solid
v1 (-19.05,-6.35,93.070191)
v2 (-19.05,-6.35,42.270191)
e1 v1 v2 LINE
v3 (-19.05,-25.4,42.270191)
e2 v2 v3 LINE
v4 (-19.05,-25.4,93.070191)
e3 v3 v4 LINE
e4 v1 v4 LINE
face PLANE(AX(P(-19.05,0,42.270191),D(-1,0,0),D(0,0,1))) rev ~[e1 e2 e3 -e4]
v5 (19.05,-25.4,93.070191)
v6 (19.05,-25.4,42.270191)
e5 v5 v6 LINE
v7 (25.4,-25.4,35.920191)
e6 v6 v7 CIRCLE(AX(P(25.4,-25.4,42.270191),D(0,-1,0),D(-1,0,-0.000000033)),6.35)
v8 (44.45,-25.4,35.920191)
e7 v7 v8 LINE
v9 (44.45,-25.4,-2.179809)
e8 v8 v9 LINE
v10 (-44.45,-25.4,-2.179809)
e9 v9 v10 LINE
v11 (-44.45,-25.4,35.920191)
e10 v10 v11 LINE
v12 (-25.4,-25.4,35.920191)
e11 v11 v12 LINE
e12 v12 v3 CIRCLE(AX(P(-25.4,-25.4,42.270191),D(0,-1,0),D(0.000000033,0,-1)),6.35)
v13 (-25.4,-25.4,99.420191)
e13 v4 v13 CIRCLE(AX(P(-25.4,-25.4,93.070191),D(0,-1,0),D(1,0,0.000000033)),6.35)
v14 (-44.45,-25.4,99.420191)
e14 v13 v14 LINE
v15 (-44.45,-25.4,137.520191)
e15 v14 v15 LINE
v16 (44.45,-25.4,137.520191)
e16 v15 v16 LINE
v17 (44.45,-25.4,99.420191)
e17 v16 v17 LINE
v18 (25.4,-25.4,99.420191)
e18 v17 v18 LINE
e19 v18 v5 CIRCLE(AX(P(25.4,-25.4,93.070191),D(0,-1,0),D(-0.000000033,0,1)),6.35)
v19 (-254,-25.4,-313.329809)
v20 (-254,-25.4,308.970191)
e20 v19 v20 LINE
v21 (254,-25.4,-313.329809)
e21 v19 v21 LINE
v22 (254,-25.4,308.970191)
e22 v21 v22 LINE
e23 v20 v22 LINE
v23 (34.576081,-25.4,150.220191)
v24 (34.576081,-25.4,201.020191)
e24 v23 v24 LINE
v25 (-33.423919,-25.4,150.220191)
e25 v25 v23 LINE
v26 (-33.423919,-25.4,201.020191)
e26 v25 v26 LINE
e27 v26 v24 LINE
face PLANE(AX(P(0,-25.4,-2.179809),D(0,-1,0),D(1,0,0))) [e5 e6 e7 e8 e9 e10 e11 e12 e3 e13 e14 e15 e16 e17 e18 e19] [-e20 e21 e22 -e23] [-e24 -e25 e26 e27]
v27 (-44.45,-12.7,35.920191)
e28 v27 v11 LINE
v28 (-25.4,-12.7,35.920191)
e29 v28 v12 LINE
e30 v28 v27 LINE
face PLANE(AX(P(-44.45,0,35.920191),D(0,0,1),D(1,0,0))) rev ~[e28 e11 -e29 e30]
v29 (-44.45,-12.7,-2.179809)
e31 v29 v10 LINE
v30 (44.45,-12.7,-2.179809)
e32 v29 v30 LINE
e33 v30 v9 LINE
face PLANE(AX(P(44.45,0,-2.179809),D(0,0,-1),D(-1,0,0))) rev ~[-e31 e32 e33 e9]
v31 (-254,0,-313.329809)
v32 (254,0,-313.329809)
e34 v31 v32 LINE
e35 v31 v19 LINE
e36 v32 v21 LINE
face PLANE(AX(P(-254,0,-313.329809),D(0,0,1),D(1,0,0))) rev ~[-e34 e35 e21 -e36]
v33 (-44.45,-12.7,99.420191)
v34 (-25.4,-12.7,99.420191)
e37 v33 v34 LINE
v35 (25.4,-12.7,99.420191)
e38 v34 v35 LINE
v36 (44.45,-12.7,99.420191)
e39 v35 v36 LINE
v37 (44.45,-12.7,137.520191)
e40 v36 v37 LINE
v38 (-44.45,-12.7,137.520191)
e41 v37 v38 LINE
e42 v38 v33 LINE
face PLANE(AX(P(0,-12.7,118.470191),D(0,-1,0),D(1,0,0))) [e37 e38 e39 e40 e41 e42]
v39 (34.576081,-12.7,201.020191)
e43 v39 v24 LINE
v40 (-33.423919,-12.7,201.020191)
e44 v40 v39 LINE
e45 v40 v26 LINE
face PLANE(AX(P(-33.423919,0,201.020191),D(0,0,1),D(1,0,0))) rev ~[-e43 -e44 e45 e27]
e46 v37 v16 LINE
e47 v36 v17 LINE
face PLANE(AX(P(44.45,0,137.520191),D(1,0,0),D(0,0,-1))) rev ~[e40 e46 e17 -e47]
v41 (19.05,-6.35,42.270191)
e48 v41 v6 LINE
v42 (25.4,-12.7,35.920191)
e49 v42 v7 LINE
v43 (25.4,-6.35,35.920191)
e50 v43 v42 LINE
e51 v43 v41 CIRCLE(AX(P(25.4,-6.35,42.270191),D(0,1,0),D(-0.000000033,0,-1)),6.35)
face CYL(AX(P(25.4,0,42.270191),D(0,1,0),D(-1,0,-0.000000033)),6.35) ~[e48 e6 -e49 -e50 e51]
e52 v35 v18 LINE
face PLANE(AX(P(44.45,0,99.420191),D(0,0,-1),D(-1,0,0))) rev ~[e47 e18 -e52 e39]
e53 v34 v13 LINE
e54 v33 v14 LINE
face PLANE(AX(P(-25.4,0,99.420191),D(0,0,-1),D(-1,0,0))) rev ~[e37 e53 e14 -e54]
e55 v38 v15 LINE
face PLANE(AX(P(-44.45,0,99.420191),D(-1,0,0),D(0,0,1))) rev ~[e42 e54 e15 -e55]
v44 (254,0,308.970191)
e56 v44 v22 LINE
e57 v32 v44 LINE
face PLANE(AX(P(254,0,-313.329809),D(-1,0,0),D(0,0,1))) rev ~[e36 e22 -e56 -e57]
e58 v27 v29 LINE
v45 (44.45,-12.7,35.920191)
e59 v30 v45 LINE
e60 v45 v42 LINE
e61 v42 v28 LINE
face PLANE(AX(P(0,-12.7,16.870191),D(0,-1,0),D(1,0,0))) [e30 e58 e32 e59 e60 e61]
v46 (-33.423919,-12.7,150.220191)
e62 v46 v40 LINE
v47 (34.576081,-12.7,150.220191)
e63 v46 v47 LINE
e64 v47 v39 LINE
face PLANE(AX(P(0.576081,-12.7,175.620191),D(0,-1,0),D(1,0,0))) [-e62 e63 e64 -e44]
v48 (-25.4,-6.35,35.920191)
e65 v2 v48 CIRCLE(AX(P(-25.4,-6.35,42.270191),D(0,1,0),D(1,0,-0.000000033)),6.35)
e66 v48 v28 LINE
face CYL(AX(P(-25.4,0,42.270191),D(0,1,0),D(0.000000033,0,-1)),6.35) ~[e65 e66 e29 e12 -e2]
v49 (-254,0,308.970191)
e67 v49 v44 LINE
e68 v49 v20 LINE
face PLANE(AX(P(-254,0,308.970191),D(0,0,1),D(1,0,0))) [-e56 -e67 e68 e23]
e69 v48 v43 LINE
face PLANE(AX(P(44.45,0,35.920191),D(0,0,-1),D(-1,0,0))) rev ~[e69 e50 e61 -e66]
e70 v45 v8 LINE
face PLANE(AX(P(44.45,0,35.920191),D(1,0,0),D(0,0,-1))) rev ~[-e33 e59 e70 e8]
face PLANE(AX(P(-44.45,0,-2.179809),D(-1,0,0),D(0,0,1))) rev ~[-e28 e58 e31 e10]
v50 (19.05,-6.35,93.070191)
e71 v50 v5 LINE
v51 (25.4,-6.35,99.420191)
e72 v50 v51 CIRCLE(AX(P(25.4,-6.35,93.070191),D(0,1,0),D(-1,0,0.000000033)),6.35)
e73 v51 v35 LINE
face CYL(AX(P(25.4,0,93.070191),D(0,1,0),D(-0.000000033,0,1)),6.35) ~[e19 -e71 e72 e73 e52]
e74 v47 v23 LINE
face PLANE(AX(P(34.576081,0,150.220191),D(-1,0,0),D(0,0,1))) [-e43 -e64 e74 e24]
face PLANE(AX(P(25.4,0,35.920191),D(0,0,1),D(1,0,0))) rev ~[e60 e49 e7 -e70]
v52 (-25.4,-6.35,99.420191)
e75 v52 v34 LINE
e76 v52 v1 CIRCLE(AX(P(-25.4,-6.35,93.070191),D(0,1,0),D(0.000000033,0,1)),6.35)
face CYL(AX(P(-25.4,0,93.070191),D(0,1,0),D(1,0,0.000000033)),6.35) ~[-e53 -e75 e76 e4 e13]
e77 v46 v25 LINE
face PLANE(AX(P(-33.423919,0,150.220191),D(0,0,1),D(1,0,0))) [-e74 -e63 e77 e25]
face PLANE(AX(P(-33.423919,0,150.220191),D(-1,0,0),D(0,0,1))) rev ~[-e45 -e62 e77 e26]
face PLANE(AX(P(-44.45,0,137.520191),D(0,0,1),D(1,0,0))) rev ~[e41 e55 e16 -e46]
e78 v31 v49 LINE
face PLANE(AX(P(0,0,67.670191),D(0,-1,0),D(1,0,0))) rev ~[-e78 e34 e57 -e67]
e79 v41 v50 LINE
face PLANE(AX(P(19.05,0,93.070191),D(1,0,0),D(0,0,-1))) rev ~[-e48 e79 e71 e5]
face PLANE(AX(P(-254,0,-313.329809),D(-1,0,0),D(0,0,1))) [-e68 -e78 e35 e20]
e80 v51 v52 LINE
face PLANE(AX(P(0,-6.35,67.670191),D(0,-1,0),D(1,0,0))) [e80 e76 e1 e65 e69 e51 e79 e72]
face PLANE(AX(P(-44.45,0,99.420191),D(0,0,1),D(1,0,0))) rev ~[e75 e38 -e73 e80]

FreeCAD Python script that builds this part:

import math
import FreeCAD as App
import Part
import Sketcher
from FreeCAD import Vector
Q = App.Units.Quantity


def add_polygon(sketch, points):
    """Adds a closed chain of lines whose ends are joined by coincident constraints."""
    first, n = sketch.GeometryCount, len(points)
    for a, b in zip(points, points[1:] + points[:1]):
        sketch.addGeometry(Part.LineSegment(App.Vector(*a, 0), App.Vector(*b, 0)), False)
    for i in range(n):
        sketch.addConstraint(Sketcher.Constraint("Coincident", first + i, 2, first + (i + 1) % n, 1))

doc = App.newDocument("Part")
body = doc.addObject("PartDesign::Body", "Body")

sketch1 = doc.addObject("Sketcher::SketchObject", "Sketch")
body.addObject(sketch1)
sketch1.AttachmentSupport = (doc.XZ_Plane, [""])
sketch1.MapMode = "FlatFace"
add_polygon(sketch1, [(-254, 308.970191), (-254, -313.329809), (254, -313.329809), (254, 308.970191)])
sketch1.addGeometry(Part.LineSegment(Vector(-25.4, 99.420191, 0), Vector(-44.45, 99.420191, 0)), False)
sketch1.addGeometry(Part.LineSegment(Vector(-44.45, 99.420191, 0), Vector(-44.45, 137.520191, 0)), False)
sketch1.addGeometry(Part.LineSegment(Vector(-44.45, 137.520191, 0), Vector(44.45, 137.520191, 0)), False)
sketch1.addGeometry(Part.LineSegment(Vector(44.45, 137.520191, 0), Vector(44.45, 99.420191, 0)), False)
sketch1.addGeometry(Part.LineSegment(Vector(44.45, 99.420191, 0), Vector(25.4, 99.420191, 0)), False)
sketch1.addGeometry(Part.ArcOfCircle(Part.Circle(Vector(25.4, 93.070191, 0), Vector(0, 0, 1), 6.35), math.radians(90.000002), math.radians(179.999998)), False)
sketch1.addGeometry(Part.LineSegment(Vector(19.05, 93.070191, 0), Vector(19.05, 42.270191, 0)), False)
sketch1.addGeometry(Part.ArcOfCircle(Part.Circle(Vector(25.4, 42.270191, 0), Vector(0, 0, 1), 6.35), math.radians(-179.999998), math.radians(-90.000002)), False)
sketch1.addGeometry(Part.LineSegment(Vector(25.4, 35.920191, 0), Vector(44.45, 35.920191, 0)), False)
sketch1.addGeometry(Part.LineSegment(Vector(44.45, 35.920191, 0), Vector(44.45, -2.179809, 0)), False)
sketch1.addGeometry(Part.LineSegment(Vector(44.45, -2.179809, 0), Vector(-44.45, -2.179809, 0)), False)
sketch1.addGeometry(Part.LineSegment(Vector(-44.45, -2.179809, 0), Vector(-44.45, 35.920191, 0)), False)
sketch1.addGeometry(Part.LineSegment(Vector(-44.45, 35.920191, 0), Vector(-25.4, 35.920191, 0)), False)
sketch1.addGeometry(Part.ArcOfCircle(Part.Circle(Vector(-25.4, 42.270191, 0), Vector(0, 0, 1), 6.35), math.radians(-89.999998), math.radians(-0.000002)), False)
sketch1.addGeometry(Part.LineSegment(Vector(-19.05, 42.270191, 0), Vector(-19.05, 93.070191, 0)), False)
sketch1.addGeometry(Part.ArcOfCircle(Part.Circle(Vector(-25.4, 93.070191, 0), Vector(0, 0, 1), 6.35), math.radians(0.000002), math.radians(89.999998)), False)
add_polygon(sketch1, [(34.576081, 150.220191), (-33.423919, 150.220191), (-33.423919, 201.020191), (34.576081, 201.020191)])
sketch1.addConstraint([
    Sketcher.Constraint("Coincident", 4, 2, 5, 1),
    Sketcher.Constraint("Coincident", 5, 2, 6, 1),
    Sketcher.Constraint("Coincident", 6, 2, 7, 1),
    Sketcher.Constraint("Coincident", 7, 2, 8, 1),
    Sketcher.Constraint("Tangent", 8, 2, 9, 1),
    Sketcher.Constraint("Tangent", 9, 2, 10, 1),
    Sketcher.Constraint("Tangent", 10, 2, 11, 1),
    Sketcher.Constraint("Tangent", 11, 2, 12, 1),
    Sketcher.Constraint("Coincident", 12, 2, 13, 1),
    Sketcher.Constraint("Coincident", 13, 2, 14, 1),
    Sketcher.Constraint("Coincident", 14, 2, 15, 1),
    Sketcher.Constraint("Coincident", 15, 2, 16, 1),
    Sketcher.Constraint("Tangent", 16, 2, 17, 1),
    Sketcher.Constraint("Tangent", 17, 2, 18, 1),
    Sketcher.Constraint("Tangent", 18, 2, 19, 1),
    Sketcher.Constraint("Tangent", 19, 2, 4, 1),
    Sketcher.Constraint("Vertical", 0),
    Sketcher.Constraint("Horizontal", 1),
    Sketcher.Constraint("Vertical", 2),
    Sketcher.Constraint("Horizontal", 3),
    Sketcher.Constraint("Horizontal", 4),
    Sketcher.Constraint("Vertical", 5),
    Sketcher.Constraint("Horizontal", 6),
    Sketcher.Constraint("Vertical", 7),
    Sketcher.Constraint("Horizontal", 8),
    Sketcher.Constraint("Vertical", 10),
    Sketcher.Constraint("Horizontal", 12),
    Sketcher.Constraint("Vertical", 13),
    Sketcher.Constraint("Horizontal", 14),
    Sketcher.Constraint("Vertical", 15),
    Sketcher.Constraint("Horizontal", 16),
    Sketcher.Constraint("Vertical", 18),
    Sketcher.Constraint("Horizontal", 20),
    Sketcher.Constraint("Vertical", 21),
    Sketcher.Constraint("Horizontal", 22),
    Sketcher.Constraint("Vertical", 23),
    Sketcher.Constraint("Equal", 9, 11),
    Sketcher.Constraint("Equal", 11, 17),
    Sketcher.Constraint("Equal", 17, 19),
    Sketcher.Constraint("Symmetric", 11, 3, 17, 3, -2),
    Sketcher.Constraint("Symmetric", 4, 2, 7, 2, -2),
    Sketcher.Constraint("Vertical", 7, 2, 12, 2),
    Sketcher.Constraint("Vertical", 5, 2, 14, 2),
    Sketcher.Constraint("Equal", 7, 13),
    Sketcher.Constraint("Equal", 18, 21),
    Sketcher.Constraint("DistanceX", 1, 1, 1, 2, Q("20 in")),
    Sketcher.Constraint("DistanceY", 10, 2, 10, 1, Q("2 in")),
    Sketcher.Constraint("Radius", 9, Q("0.25 in")),
    Sketcher.Constraint("DistanceX", 6, 1, 6, 2, Q("3.5 in")),
    Sketcher.Constraint("DistanceY", 0, 2, 0, 1, Q("24.5 in")),
    Sketcher.Constraint("DistanceY", 5, 1, 5, 2, Q("1.5 in")),
    Sketcher.Constraint("DistanceX", -1, 1, 9, 3, Q("1 in")),
    Sketcher.Constraint("DistanceX", 0, 2, -1, 1, Q("10 in")),
    Sketcher.Constraint("DistanceY", 0, 2, 17, 3, Q("14 in")),
    Sketcher.Constraint("DistanceY", 19, 2, 20, 2, Q("2 in")),
    Sketcher.Constraint("DistanceX", 20, 2, 20, 1, 68.0),
    Sketcher.Constraint("DistanceY", -1, 1, 9, 3, 93.070191),
    Sketcher.Constraint("DistanceX", 20, 2, -1, 1, 33.423919),
])
pad1 = doc.addObject("PartDesign::Pad", "Pad")
body.addObject(pad1)
pad1.Profile = sketch1
pad1.Length = Q("1 in")

sketch2 = doc.addObject("Sketcher::SketchObject", "Sketch001")
body.addObject(sketch2)
sketch2.AttachmentSupport = (doc.XZ_Plane, [""])
sketch2.MapMode = "FlatFace"
add_polygon(sketch2, [(-33.423919, 201.020191), (-33.423919, 150.220191), (34.576081, 150.220191), (34.576081, 201.020191)])
add_polygon(sketch2, [(44.45, 137.520191), (-44.45, 137.520191), (-44.45, 99.420191), (44.45, 99.420191)])
add_polygon(sketch2, [(-44.45, 35.920191), (-44.45, -2.179809), (44.45, -2.179809), (44.45, 35.920191)])
sketch2.addConstraint([
    Sketcher.Constraint("Vertical", 0),
    Sketcher.Constraint("Horizontal", 1),
    Sketcher.Constraint("Vertical", 2),
    Sketcher.Constraint("Horizontal", 3),
    Sketcher.Constraint("Horizontal", 4),
    Sketcher.Constraint("Vertical", 5),
    Sketcher.Constraint("Horizontal", 6),
    Sketcher.Constraint("Vertical", 7),
    Sketcher.Constraint("Vertical", 8),
    Sketcher.Constraint("Horizontal", 9),
    Sketcher.Constraint("Vertical", 10),
    Sketcher.Constraint("Horizontal", 11),
    Sketcher.Constraint("Vertical", 5, 2, 8, 2),
    Sketcher.Constraint("Vertical", 7, 2, 9, 2),
    Sketcher.Constraint("Equal", 7, 8),
    Sketcher.Constraint("DistanceY", 0, 2, 0, 1, Q("2 in")),
    Sketcher.Constraint("DistanceX", 4, 2, 4, 1, Q("3.5 in")),
    Sketcher.Constraint("DistanceY", 5, 2, 5, 1, Q("1.5 in")),
    Sketcher.Constraint("DistanceY", 5, 2, 0, 2, Q("2 in")),
    Sketcher.Constraint("DistanceY", 8, 2, 5, 2, Q("4 in")),
    Sketcher.Constraint("DistanceX", 4, 2, -1, 1, Q("1.75 in")),
    Sketcher.Constraint("DistanceX", 1, 1, 1, 2, 68.0),
    Sketcher.Constraint("DistanceX", 0, 2, -1, 1, 33.423919),
    Sketcher.Constraint("DistanceY", -1, 1, 0, 2, 150.220191),
])
pad2 = doc.addObject("PartDesign::Pad", "Pad001")
body.addObject(pad2)
pad2.Profile = sketch2
pad2.Length = Q("0.5 in")

sketch3 = doc.addObject("Sketcher::SketchObject", "Sketch002")
body.addObject(sketch3)
sketch3.AttachmentSupport = (doc.XZ_Plane, [""])
sketch3.MapMode = "FlatFace"
sketch3.addGeometry([
    Part.LineSegment(Vector(25.4, 99.420191, 0), Vector(-25.4, 99.420191, 0)),
    Part.ArcOfCircle(Part.Circle(Vector(-25.4, 93.070191, 0), Vector(0, 0, 1), 6.35), math.radians(0.000002), math.radians(89.999998)),
    Part.LineSegment(Vector(-19.05, 93.070191, 0), Vector(-19.05, 42.270191, 0)),
    Part.ArcOfCircle(Part.Circle(Vector(-25.4, 42.270191, 0), Vector(0, 0, 1), 6.35), math.radians(-89.999998), math.radians(-0.000002)),
    Part.LineSegment(Vector(-25.4, 35.920191, 0), Vector(25.4, 35.920191, 0)),
    Part.ArcOfCircle(Part.Circle(Vector(25.4, 42.270191, 0), Vector(0, 0, 1), 6.35), math.radians(-179.999998), math.radians(-90.000002)),
    Part.LineSegment(Vector(19.05, 42.270191, 0), Vector(19.05, 93.070191, 0)),
    Part.ArcOfCircle(Part.Circle(Vector(25.4, 93.070191, 0), Vector(0, 0, 1), 6.35), math.radians(90.000002), math.radians(179.999998)),
], False)
sketch3.addConstraint([
    Sketcher.Constraint("Tangent", 0, 2, 1, 2),
    Sketcher.Constraint("Tangent", 1, 1, 2, 1),
    Sketcher.Constraint("Tangent", 2, 2, 3, 2),
    Sketcher.Constraint("Tangent", 3, 1, 4, 1),
    Sketcher.Constraint("Tangent", 4, 2, 5, 2),
    Sketcher.Constraint("Tangent", 5, 1, 6, 1),
    Sketcher.Constraint("Tangent", 6, 2, 7, 2),
    Sketcher.Constraint("Tangent", 7, 1, 0, 1),
    Sketcher.Constraint("Horizontal", 0),
    Sketcher.Constraint("Vertical", 2),
    Sketcher.Constraint("Horizontal", 4),
    Sketcher.Constraint("Vertical", 6),
    Sketcher.Constraint("Equal", 1, 3),
    Sketcher.Constraint("Equal", 3, 5),
    Sketcher.Constraint("Equal", 5, 7),
    Sketcher.Constraint("Equal", 4, 2),
    Sketcher.Constraint("DistanceX", 0, 2, 0, 1, Q("2 in")),
    Sketcher.Constraint("Radius", 1, Q("0.25 in")),
    Sketcher.Constraint("DistanceX", 1, 3, -1, 1, Q("1 in")),
    Sketcher.Constraint("DistanceY", -1, 1, 1, 3, 93.070191),
])
pad3 = doc.addObject("PartDesign::Pad", "Pad002")
body.addObject(pad3)
pad3.Profile = sketch3
pad3.Length = Q("0.25 in")

doc.recompute()
